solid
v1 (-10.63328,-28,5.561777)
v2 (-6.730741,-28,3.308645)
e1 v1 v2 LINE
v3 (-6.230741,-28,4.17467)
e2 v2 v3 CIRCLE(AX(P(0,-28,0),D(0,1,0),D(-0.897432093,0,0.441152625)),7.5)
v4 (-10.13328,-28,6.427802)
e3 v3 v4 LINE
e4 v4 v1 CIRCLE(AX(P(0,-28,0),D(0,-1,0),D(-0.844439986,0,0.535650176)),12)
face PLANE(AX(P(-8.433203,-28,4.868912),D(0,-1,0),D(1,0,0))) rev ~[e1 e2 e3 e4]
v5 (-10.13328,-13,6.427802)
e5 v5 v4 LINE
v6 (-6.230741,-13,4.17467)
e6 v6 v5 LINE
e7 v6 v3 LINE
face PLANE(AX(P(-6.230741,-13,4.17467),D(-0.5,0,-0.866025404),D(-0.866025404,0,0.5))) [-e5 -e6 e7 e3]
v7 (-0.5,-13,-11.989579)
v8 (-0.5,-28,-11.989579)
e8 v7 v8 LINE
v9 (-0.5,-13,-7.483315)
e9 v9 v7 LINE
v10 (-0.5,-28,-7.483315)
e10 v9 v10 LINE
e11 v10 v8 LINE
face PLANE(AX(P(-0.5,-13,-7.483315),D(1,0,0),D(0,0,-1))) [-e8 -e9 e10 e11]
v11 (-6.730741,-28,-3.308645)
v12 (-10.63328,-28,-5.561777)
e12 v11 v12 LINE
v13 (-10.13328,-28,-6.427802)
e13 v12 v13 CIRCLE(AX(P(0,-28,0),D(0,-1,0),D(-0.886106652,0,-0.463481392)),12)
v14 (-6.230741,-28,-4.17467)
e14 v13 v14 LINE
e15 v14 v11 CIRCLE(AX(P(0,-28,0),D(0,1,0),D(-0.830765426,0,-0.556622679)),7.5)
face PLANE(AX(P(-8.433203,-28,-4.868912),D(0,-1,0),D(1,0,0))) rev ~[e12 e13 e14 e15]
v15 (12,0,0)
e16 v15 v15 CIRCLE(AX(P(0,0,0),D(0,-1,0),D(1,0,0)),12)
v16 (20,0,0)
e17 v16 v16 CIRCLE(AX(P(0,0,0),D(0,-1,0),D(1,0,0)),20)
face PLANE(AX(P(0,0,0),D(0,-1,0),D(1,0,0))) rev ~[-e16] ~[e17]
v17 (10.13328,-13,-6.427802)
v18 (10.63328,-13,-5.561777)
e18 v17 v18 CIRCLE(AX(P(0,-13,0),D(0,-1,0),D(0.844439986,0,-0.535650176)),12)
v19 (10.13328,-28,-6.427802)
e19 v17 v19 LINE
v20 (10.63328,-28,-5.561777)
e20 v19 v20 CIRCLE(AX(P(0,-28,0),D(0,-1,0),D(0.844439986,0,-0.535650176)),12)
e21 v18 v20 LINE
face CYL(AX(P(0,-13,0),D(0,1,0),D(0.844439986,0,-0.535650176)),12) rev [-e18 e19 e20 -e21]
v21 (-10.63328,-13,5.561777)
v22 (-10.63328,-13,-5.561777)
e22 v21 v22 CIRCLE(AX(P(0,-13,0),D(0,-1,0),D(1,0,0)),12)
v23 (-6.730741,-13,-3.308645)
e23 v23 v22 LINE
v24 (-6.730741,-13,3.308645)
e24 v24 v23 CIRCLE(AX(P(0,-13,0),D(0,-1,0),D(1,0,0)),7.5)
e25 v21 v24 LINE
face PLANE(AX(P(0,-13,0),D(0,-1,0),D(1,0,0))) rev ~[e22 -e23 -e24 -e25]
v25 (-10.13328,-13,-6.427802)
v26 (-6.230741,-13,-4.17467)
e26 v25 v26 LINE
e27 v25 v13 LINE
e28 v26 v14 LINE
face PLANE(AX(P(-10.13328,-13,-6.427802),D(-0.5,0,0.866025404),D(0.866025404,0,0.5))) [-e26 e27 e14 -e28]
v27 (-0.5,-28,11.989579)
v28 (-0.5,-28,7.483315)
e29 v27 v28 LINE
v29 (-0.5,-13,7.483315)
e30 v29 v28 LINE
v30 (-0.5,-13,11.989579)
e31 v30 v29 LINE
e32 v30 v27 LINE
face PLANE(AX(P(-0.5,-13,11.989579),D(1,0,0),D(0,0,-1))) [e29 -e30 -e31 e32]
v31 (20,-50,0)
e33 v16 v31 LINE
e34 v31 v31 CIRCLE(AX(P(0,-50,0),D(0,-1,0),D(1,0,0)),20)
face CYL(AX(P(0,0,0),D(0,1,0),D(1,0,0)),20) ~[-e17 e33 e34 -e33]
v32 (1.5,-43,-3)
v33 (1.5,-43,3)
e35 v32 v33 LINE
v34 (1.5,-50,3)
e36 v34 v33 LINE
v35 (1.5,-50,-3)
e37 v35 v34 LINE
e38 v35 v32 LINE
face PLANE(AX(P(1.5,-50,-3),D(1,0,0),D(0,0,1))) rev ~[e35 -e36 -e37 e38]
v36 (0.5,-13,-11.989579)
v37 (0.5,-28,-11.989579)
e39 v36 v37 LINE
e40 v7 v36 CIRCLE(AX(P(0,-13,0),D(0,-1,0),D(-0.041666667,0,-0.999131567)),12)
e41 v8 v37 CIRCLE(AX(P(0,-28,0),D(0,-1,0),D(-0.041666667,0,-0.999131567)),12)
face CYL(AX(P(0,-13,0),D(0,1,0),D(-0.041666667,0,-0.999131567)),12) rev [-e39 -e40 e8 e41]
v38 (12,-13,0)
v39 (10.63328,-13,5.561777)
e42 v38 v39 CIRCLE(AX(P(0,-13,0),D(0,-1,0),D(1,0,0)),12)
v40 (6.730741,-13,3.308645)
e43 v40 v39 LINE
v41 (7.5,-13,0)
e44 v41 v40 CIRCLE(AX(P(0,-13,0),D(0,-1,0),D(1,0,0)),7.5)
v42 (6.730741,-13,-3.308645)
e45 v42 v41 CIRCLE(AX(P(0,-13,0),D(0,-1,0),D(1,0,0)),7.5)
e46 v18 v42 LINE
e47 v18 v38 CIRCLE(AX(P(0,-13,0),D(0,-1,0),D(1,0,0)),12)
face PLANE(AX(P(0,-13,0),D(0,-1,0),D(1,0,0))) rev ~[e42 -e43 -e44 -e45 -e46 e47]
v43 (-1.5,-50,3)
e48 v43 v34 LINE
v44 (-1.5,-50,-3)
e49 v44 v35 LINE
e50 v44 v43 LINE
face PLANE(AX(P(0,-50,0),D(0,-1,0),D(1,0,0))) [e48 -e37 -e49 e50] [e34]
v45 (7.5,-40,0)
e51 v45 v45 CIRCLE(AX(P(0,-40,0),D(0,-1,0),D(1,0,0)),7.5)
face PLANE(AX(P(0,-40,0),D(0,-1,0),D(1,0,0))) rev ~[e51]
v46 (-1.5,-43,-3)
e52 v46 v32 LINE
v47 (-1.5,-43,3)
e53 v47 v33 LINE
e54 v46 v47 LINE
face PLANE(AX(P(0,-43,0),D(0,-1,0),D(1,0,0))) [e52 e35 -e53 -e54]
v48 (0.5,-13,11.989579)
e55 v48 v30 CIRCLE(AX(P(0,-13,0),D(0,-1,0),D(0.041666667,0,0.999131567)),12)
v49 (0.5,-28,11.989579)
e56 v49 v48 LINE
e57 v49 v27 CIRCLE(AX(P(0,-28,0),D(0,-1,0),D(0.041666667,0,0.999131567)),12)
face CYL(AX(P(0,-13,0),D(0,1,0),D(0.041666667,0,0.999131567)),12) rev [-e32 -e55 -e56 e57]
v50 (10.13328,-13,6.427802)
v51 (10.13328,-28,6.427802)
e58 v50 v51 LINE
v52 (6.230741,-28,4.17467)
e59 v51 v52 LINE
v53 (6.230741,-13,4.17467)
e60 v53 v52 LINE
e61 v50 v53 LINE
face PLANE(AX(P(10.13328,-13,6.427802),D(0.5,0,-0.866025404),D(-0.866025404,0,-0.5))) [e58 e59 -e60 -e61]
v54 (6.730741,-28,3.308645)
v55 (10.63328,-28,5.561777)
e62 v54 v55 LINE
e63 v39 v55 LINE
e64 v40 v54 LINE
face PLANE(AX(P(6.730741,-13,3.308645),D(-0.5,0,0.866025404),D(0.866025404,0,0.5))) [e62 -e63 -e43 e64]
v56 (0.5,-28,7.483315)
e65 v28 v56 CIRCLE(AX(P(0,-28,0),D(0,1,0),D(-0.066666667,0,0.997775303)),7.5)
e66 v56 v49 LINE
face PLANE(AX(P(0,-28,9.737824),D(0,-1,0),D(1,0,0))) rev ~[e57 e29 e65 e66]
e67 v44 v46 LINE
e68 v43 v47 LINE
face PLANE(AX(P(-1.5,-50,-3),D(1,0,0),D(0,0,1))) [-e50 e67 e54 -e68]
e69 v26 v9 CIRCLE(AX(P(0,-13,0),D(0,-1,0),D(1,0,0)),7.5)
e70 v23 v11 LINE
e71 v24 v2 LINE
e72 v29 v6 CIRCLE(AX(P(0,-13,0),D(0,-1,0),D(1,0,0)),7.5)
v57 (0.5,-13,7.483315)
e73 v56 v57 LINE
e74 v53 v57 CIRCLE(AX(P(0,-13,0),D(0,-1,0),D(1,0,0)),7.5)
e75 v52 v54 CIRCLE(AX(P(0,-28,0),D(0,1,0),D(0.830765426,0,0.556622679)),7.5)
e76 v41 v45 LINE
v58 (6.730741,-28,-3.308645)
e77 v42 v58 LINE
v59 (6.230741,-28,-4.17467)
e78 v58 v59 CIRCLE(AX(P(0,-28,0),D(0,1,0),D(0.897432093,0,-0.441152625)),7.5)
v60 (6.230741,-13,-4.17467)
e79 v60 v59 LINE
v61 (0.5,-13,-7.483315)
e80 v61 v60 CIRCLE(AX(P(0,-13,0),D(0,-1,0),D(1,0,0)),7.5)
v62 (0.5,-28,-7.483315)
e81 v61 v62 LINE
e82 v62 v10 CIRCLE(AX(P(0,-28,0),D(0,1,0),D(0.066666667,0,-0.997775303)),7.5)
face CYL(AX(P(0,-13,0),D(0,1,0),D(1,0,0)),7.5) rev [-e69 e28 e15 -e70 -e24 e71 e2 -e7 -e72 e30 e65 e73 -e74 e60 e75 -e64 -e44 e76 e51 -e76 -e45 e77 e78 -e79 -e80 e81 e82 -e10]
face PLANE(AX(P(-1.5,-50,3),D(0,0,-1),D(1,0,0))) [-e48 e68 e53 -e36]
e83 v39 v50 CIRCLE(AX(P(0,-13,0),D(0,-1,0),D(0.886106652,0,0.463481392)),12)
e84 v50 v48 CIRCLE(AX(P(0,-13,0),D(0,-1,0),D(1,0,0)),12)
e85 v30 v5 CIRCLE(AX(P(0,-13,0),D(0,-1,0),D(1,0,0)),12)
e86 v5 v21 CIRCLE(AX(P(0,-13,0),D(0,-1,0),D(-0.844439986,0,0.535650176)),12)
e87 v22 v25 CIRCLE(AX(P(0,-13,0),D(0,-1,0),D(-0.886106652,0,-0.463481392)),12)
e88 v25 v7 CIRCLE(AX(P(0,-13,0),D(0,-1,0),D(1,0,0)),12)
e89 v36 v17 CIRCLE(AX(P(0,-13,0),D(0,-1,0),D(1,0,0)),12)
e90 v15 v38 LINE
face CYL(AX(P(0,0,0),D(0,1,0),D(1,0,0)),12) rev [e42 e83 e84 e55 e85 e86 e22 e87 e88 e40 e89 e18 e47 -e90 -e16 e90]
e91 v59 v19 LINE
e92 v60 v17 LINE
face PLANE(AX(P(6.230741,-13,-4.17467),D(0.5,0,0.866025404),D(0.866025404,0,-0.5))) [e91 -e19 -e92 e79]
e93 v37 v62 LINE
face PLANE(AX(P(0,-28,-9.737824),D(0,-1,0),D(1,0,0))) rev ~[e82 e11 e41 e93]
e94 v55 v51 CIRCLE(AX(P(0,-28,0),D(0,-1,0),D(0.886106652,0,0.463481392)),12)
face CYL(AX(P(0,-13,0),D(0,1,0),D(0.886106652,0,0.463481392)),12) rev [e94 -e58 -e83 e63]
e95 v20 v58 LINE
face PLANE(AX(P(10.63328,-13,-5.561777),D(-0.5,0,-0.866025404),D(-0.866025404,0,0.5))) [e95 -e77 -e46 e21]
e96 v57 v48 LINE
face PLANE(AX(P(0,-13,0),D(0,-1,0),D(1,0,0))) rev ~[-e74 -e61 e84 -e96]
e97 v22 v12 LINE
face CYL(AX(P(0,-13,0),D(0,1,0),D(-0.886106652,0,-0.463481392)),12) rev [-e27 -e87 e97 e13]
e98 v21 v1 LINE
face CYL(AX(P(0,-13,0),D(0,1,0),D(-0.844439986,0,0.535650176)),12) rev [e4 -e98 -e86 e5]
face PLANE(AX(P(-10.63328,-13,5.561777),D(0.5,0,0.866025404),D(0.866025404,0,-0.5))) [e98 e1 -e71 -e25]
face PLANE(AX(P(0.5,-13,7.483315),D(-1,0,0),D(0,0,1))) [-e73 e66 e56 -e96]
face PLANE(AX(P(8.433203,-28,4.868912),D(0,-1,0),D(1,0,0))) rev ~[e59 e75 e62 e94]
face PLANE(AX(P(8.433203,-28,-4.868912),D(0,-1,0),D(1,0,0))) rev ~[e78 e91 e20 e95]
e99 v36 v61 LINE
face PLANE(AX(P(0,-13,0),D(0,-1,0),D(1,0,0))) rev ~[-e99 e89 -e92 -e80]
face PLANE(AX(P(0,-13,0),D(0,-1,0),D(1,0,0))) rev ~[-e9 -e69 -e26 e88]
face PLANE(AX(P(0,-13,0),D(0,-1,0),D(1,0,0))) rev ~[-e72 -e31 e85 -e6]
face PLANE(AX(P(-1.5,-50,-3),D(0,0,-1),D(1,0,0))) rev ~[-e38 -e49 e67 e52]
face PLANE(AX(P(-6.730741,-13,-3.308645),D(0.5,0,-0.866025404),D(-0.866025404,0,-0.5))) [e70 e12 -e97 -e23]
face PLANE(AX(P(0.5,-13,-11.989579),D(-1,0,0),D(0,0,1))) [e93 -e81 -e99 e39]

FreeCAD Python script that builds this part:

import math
import FreeCAD as App
import Part
import Sketcher
from FreeCAD import Vector
Q = App.Units.Quantity


def add_polygon(sketch, points):
    """Adds a closed chain of lines whose ends are joined by coincident constraints."""
    first, n = sketch.GeometryCount, len(points)
    for a, b in zip(points, points[1:] + points[:1]):
        sketch.addGeometry(Part.LineSegment(App.Vector(*a, 0), App.Vector(*b, 0)), False)
    for i in range(n):
        sketch.addConstraint(Sketcher.Constraint("Coincident", first + i, 2, first + (i + 1) % n, 1))

doc = App.newDocument("Part")
params = doc.addObject("Spreadsheet::Sheet", "Params")
for row, (alias, value) in enumerate([
    ("sketch1_diameter", "40 mm"),
    ("sketch1_diameter2", "24 mm"),
    ("pad1_length", "50 mm"),
    ("sketch2_diameter", "24 mm"),
    ("sketch2_diameter2", "15 mm"),
    ("pad2_length", "37 mm"),
    ("sketch3_radius", "12 mm"),
    ("sketch3_radius2", "7.5 mm"),
    ("pocket1_length", "10 mm"),
    ("sketch4_radius", "12 mm"),
    ("sketch4_radius2", "7.5 mm"),
    ("pocket2_length", "15 mm"),
    ("sketch5_diameter", "15 mm"),
    ("pad3_length", "10 mm"),
    ("sketch6_width", "3 mm"),
    ("sketch6_height", "6 mm"),
    ("pocket3_length", "7 mm"),
], start=1):
    params.set(f"A{row}", alias)
    params.set(f"B{row}", "=" + value)
    params.setAlias(f"B{row}", alias)

body = doc.addObject("PartDesign::Body", "Body")

# Sketch on XZ plane
sketch1 = body.newObject("Sketcher::SketchObject", "Sketch")
sketch1.AttachmentSupport = (doc.getObject("XZ_Plane"), [""])
sketch1.MapMode = "FlatFace"
sketch1.addGeometry([
    Part.Circle(Vector(0, 0, 0), Vector(0, 0, 1), 20),
    Part.Circle(Vector(0, 0, 0), Vector(0, 0, 1), 12),
], False)
sketch1.addConstraint([
    Sketcher.Constraint("Coincident", 0, 3, -1, 1),
    Sketcher.Constraint("Coincident", 1, 3, -1, 1),
    Sketcher.Constraint("Diameter", 0, 40.0),
    Sketcher.Constraint("Diameter", 1, 24.0),
])
sketch1.setExpression("Constraints[2]", "Params.sketch1_diameter")
sketch1.setExpression("Constraints[3]", "Params.sketch1_diameter2")
pad1 = body.newObject("PartDesign::Pad", "Pad")
pad1.Profile = sketch1
pad1.setExpression("Length", "Params.pad1_length")

# Sketch on XZ plane
sketch2 = body.newObject("Sketcher::SketchObject", "Sketch001")
sketch2.AttachmentSupport = (doc.getObject("XZ_Plane"), [""])
sketch2.MapMode = "FlatFace"
sketch2.AttachmentOffset = App.Placement(Vector(0, 0, 13), App.Rotation())
sketch2.addGeometry([
    Part.Circle(Vector(0, 0, 0), Vector(0, 0, 1), 12),
    Part.Circle(Vector(0, 0, 0), Vector(0, 0, 1), 8),
], False)
sketch2.addConstraint([
    Sketcher.Constraint("Coincident", 0, 3, -1, 1),
    Sketcher.Constraint("Coincident", 1, 3, -1, 1),
    Sketcher.Constraint("Diameter", 0, 24.0),
    Sketcher.Constraint("Diameter", 1, 15.0),
])
sketch2.setExpression("Constraints[2]", "Params.sketch2_diameter")
sketch2.setExpression("Constraints[3]", "Params.sketch2_diameter2")
pad2 = body.newObject("PartDesign::Pad", "Pad001")
pad2.Profile = sketch2
pad2.setExpression("Length", "Params.pad2_length")

# Sketch on XZ plane
sketch3 = body.newObject("Sketcher::SketchObject", "Sketch002")
sketch3.AttachmentSupport = (doc.getObject("XZ_Plane"), [""])
sketch3.MapMode = "FlatFace"
sketch3.AttachmentOffset = App.Placement(Vector(0, 0, 13), App.Rotation())
sketch3.addGeometry([
    Part.ArcOfCircle(Part.Circle(Vector(0, 0, 0), Vector(0, 0, 1), 12), math.radians(87.61), math.radians(92.39)),
    Part.LineSegment(Vector(-0.5, 12, 0), Vector(-0.5, 7.5, 0)),
    Part.ArcOfCircle(Part.Circle(Vector(0, 0, 0), Vector(0, 0, 1), 7.5), math.radians(86.18), math.radians(93.82)),
    Part.LineSegment(Vector(0.5, 7.5, 0), Vector(0.5, 12, 0)),
], False)
sketch3.addConstraint([
    Sketcher.Constraint("Coincident", 0, 2, 1, 1),
    Sketcher.Constraint("Coincident", 1, 2, 2, 2),
    Sketcher.Constraint("Coincident", 2, 1, 3, 1),
    Sketcher.Constraint("Coincident", 3, 2, 0, 1),
    Sketcher.Constraint("Vertical", 1),
    Sketcher.Constraint("Vertical", 3),
    Sketcher.Constraint("Coincident", 0, 3, -1, 1),
    Sketcher.Constraint("Coincident", 2, 3, -1, 1),
    Sketcher.Constraint("Horizontal", 1, 2, 2, 1),
    Sketcher.Constraint("Radius", 0, 12.0),
    Sketcher.Constraint("Radius", 2, 7.5),
    Sketcher.Constraint("DistanceX", 1, 2, 2, 1, 1.0),
])
sketch3.setExpression("Constraints[9]", "Params.sketch3_radius")
sketch3.setExpression("Constraints[10]", "Params.sketch3_radius2")
pocket1 = body.newObject("PartDesign::Pocket", "Pocket")
pocket1.Profile = sketch3
pocket1.setExpression("Length", "Params.pocket1_length")
pocket1.Reversed = True

# Sketch on XZ plane
sketch4 = body.newObject("Sketcher::SketchObject", "Sketch003")
sketch4.AttachmentSupport = (doc.getObject("XZ_Plane"), [""])
sketch4.MapMode = "FlatFace"
sketch4.AttachmentOffset = App.Placement(Vector(0, 0, 13), App.Rotation())
sketch4.addGeometry([
    Part.ArcOfCircle(Part.Circle(Vector(0, 0, 0), Vector(0, 0, 1), 12), math.radians(87.61), math.radians(92.39)),  # 0
    Part.LineSegment(Vector(-0.5, 12, 0), Vector(-0.5, 7.5, 0)),  # 1
    Part.ArcOfCircle(Part.Circle(Vector(0, 0, 0), Vector(0, 0, 1), 7.5), math.radians(86.18), math.radians(93.82)),  # 2
    Part.LineSegment(Vector(0.5, 7.5, 0), Vector(0.5, 12, 0)),  # 3
    Part.ArcOfCircle(Part.Circle(Vector(0, 0, 0), Vector(0, 0, 1), 7.5), math.radians(146.18), math.radians(153.82)),  # 4
    Part.LineSegment(Vector(-6.2, 4.2, 0), Vector(-10.1, 6.4, 0)),  # 5
    Part.ArcOfCircle(Part.Circle(Vector(0, 0, 0), Vector(0, 0, 1), 12), math.radians(147.61), math.radians(152.39)),  # 6
    Part.LineSegment(Vector(-10.6, 5.6, 0), Vector(-6.7, 3.3, 0)),  # 7
    Part.ArcOfCircle(Part.Circle(Vector(0, 0, 0), Vector(0, 0, 1), 7.5), math.radians(-153.82), math.radians(-146.18)),  # 8
    Part.LineSegment(Vector(-6.7, -3.3, 0), Vector(-10.6, -5.6, 0)),  # 9
    Part.ArcOfCircle(Part.Circle(Vector(0, 0, 0), Vector(0, 0, 1), 12), math.radians(-152.39), math.radians(-147.61)),  # 10
    Part.LineSegment(Vector(-10.1, -6.4, 0), Vector(-6.2, -4.2, 0)),  # 11
    Part.ArcOfCircle(Part.Circle(Vector(0, 0, 0), Vector(0, 0, 1), 7.5), math.radians(-93.82), math.radians(-86.18)),  # 12
    Part.LineSegment(Vector(-0.5, -7.5, 0), Vector(-0.5, -12, 0)),  # 13
    Part.ArcOfCircle(Part.Circle(Vector(0, 0, 0), Vector(0, 0, 1), 12), math.radians(-92.39), math.radians(-87.61)),  # 14
    Part.LineSegment(Vector(0.5, -12, 0), Vector(0.5, -7.5, 0)),  # 15
    Part.ArcOfCircle(Part.Circle(Vector(0, 0, 0), Vector(0, 0, 1), 7.5), math.radians(-33.82), math.radians(-26.18)),  # 16
    Part.LineSegment(Vector(6.2, -4.2, 0), Vector(10.1, -6.4, 0)),  # 17
    Part.ArcOfCircle(Part.Circle(Vector(0, 0, 0), Vector(0, 0, 1), 12), math.radians(-32.39), math.radians(-27.61)),  # 18
    Part.LineSegment(Vector(10.6, -5.6, 0), Vector(6.7, -3.3, 0)),  # 19
    Part.ArcOfCircle(Part.Circle(Vector(0, 0, 0), Vector(0, 0, 1), 7.5), math.radians(26.18), math.radians(33.82)),  # 20
    Part.LineSegment(Vector(6.7, 3.3, 0), Vector(10.6, 5.6, 0)),  # 21
    Part.ArcOfCircle(Part.Circle(Vector(0, 0, 0), Vector(0, 0, 1), 12), math.radians(27.61), math.radians(32.39)),  # 22
    Part.LineSegment(Vector(10.1, 6.4, 0), Vector(6.2, 4.2, 0)),  # 23
], False)
sketch4.addConstraint([
    Sketcher.Constraint("Coincident", 0, 2, 1, 1),
    Sketcher.Constraint("Coincident", 1, 2, 2, 2),
    Sketcher.Constraint("Coincident", 2, 1, 3, 1),
    Sketcher.Constraint("Coincident", 3, 2, 0, 1),
    Sketcher.Constraint("Coincident", 4, 1, 5, 1),
    Sketcher.Constraint("Coincident", 5, 2, 6, 1),
    Sketcher.Constraint("Coincident", 6, 2, 7, 1),
    Sketcher.Constraint("Coincident", 7, 2, 4, 2),
    Sketcher.Constraint("Coincident", 8, 1, 9, 1),
    Sketcher.Constraint("Coincident", 9, 2, 10, 1),
    Sketcher.Constraint("Coincident", 10, 2, 11, 1),
    Sketcher.Constraint("Coincident", 11, 2, 8, 2),
    Sketcher.Constraint("Coincident", 12, 1, 13, 1),
    Sketcher.Constraint("Coincident", 13, 2, 14, 1),
    Sketcher.Constraint("Coincident", 14, 2, 15, 1),
    Sketcher.Constraint("Coincident", 15, 2, 12, 2),
    Sketcher.Constraint("Coincident", 16, 1, 17, 1),
    Sketcher.Constraint("Coincident", 17, 2, 18, 1),
    Sketcher.Constraint("Coincident", 18, 2, 19, 1),
    Sketcher.Constraint("Coincident", 19, 2, 16, 2),
    Sketcher.Constraint("Coincident", 20, 1, 21, 1),
    Sketcher.Constraint("Coincident", 21, 2, 22, 1),
    Sketcher.Constraint("Coincident", 22, 2, 23, 1),
    Sketcher.Constraint("Coincident", 23, 2, 20, 2),
    Sketcher.Constraint("Vertical", 1),
    Sketcher.Constraint("Vertical", 3),
    Sketcher.Constraint("Vertical", 13),
    Sketcher.Constraint("Vertical", 15),
    Sketcher.Constraint("Coincident", 0, 3, -1, 1),
    Sketcher.Constraint("Coincident", 2, 3, -1, 1),
    Sketcher.Constraint("Coincident", 4, 3, -1, 1),
    Sketcher.Constraint("Coincident", 6, 3, -1, 1),
    Sketcher.Constraint("Coincident", 8, 3, -1, 1),
    Sketcher.Constraint("Coincident", 10, 3, -1, 1),
    Sketcher.Constraint("Coincident", 12, 3, -1, 1),
    Sketcher.Constraint("Coincident", 14, 3, -1, 1),
    Sketcher.Constraint("Coincident", 16, 3, -1, 1),
    Sketcher.Constraint("Coincident", 18, 3, -1, 1),
    Sketcher.Constraint("Coincident", 20, 3, -1, 1),
    Sketcher.Constraint("Coincident", 22, 3, -1, 1),
    Sketcher.Constraint("Equal", 2, 4),
    Sketcher.Constraint("Equal", 0, 6),
    Sketcher.Constraint("Equal", 4, 8),
    Sketcher.Constraint("Equal", 6, 10),
    Sketcher.Constraint("Equal", 8, 12),
    Sketcher.Constraint("Equal", 10, 14),
    Sketcher.Constraint("Equal", 12, 16),
    Sketcher.Constraint("Equal", 14, 18),
    Sketcher.Constraint("Equal", 16, 20),
    Sketcher.Constraint("Equal", 18, 22),
    Sketcher.Constraint("Parallel", 5, 7),
    Sketcher.Constraint("Parallel", 9, 11),
    Sketcher.Constraint("Parallel", 7, 17),
    Sketcher.Constraint("Parallel", 17, 19),
    Sketcher.Constraint("Parallel", 11, 21),
    Sketcher.Constraint("Parallel", 21, 23),
    Sketcher.Constraint("Horizontal", 1, 2, 2, 1),
    Sketcher.Constraint("Horizontal", 13, 2, 14, 2),
    Sketcher.Constraint("Horizontal", 11, 2, 16, 1),
    Sketcher.Constraint("Horizontal", 10, 2, 17, 2),
    Sketcher.Constraint("Horizontal", 9, 2, 18, 2),
    Sketcher.Constraint("Horizontal", 7, 2, 20, 1),
    Sketcher.Constraint("Horizontal", 5, 2, 22, 2),
    Sketcher.Constraint("Vertical", 7, 2, 8, 1),
    Sketcher.Constraint("Vertical", 5, 2, 10, 2),
    Sketcher.Constraint("Vertical", 1, 2, 12, 1),
    Sketcher.Constraint("Equal", 5, 7),
    Sketcher.Constraint("Radius", 0, 12.0),
    Sketcher.Constraint("Radius", 2, 7.5),
    Sketcher.Constraint("Angle", 5, Q("150 deg")),
    Sketcher.Constraint("DistanceX", 1, 2, 2, 1, 1.0),
    Sketcher.Constraint("DistanceX", 6, 2, 5, 2, 0.5),
])
sketch4.setExpression("Constraints[67]", "Params.sketch4_radius")
sketch4.setExpression("Constraints[68]", "Params.sketch4_radius2")
pocket2 = body.newObject("PartDesign::Pocket", "Pocket001")
pocket2.Profile = sketch4
pocket2.setExpression("Length", "Params.pocket2_length")
pocket2.Reversed = True

# Sketch on XZ plane
sketch5 = body.newObject("Sketcher::SketchObject", "Sketch004")
sketch5.AttachmentSupport = (doc.getObject("XZ_Plane"), [""])
sketch5.MapMode = "FlatFace"
sketch5.AttachmentOffset = App.Placement(Vector(0, 0, 50), App.Rotation())
sketch5.addGeometry(Part.Circle(Vector(0, 0, 0), Vector(0, 0, 1), 8), False)
sketch5.addConstraint([
    Sketcher.Constraint("Coincident", 0, 3, -1, 1),
    Sketcher.Constraint("Diameter", 0, 15.0),
])
sketch5.setExpression("Constraints[1]", "Params.sketch5_diameter")
pad3 = body.newObject("PartDesign::Pad", "Pad002")
pad3.Profile = sketch5
pad3.setExpression("Length", "Params.pad3_length")
pad3.Reversed = True

# Sketch on XZ plane
sketch6 = body.newObject("Sketcher::SketchObject", "Sketch005")
sketch6.AttachmentSupport = (doc.getObject("XZ_Plane"), [""])
sketch6.MapMode = "FlatFace"
sketch6.AttachmentOffset = App.Placement(Vector(0, 0, 50), App.Rotation())
add_polygon(sketch6, [(-1.5, 3), (-1.5, -3), (1.5, -3), (1.5, 3)])  # lines 0-3
sketch6.addConstraint([
    Sketcher.Constraint("Vertical", 0),
    Sketcher.Constraint("Horizontal", 1),
    Sketcher.Constraint("Vertical", 2),
    Sketcher.Constraint("Horizontal", 3),
    Sketcher.Constraint("Symmetric", 0, 2, 2, 2, -1, 1),
    Sketcher.Constraint("DistanceX", 1, 1, 1, 2, 3.0),
    Sketcher.Constraint("DistanceY", 0, 2, 0, 1, 6.0),
])
sketch6.setExpression("Constraints[9]", "Params.sketch6_width")
sketch6.setExpression("Constraints[10]", "Params.sketch6_height")
pocket3 = body.newObject("PartDesign::Pocket", "Pocket002")
pocket3.Profile = sketch6
pocket3.setExpression("Length", "Params.pocket3_length")

doc.recompute()
